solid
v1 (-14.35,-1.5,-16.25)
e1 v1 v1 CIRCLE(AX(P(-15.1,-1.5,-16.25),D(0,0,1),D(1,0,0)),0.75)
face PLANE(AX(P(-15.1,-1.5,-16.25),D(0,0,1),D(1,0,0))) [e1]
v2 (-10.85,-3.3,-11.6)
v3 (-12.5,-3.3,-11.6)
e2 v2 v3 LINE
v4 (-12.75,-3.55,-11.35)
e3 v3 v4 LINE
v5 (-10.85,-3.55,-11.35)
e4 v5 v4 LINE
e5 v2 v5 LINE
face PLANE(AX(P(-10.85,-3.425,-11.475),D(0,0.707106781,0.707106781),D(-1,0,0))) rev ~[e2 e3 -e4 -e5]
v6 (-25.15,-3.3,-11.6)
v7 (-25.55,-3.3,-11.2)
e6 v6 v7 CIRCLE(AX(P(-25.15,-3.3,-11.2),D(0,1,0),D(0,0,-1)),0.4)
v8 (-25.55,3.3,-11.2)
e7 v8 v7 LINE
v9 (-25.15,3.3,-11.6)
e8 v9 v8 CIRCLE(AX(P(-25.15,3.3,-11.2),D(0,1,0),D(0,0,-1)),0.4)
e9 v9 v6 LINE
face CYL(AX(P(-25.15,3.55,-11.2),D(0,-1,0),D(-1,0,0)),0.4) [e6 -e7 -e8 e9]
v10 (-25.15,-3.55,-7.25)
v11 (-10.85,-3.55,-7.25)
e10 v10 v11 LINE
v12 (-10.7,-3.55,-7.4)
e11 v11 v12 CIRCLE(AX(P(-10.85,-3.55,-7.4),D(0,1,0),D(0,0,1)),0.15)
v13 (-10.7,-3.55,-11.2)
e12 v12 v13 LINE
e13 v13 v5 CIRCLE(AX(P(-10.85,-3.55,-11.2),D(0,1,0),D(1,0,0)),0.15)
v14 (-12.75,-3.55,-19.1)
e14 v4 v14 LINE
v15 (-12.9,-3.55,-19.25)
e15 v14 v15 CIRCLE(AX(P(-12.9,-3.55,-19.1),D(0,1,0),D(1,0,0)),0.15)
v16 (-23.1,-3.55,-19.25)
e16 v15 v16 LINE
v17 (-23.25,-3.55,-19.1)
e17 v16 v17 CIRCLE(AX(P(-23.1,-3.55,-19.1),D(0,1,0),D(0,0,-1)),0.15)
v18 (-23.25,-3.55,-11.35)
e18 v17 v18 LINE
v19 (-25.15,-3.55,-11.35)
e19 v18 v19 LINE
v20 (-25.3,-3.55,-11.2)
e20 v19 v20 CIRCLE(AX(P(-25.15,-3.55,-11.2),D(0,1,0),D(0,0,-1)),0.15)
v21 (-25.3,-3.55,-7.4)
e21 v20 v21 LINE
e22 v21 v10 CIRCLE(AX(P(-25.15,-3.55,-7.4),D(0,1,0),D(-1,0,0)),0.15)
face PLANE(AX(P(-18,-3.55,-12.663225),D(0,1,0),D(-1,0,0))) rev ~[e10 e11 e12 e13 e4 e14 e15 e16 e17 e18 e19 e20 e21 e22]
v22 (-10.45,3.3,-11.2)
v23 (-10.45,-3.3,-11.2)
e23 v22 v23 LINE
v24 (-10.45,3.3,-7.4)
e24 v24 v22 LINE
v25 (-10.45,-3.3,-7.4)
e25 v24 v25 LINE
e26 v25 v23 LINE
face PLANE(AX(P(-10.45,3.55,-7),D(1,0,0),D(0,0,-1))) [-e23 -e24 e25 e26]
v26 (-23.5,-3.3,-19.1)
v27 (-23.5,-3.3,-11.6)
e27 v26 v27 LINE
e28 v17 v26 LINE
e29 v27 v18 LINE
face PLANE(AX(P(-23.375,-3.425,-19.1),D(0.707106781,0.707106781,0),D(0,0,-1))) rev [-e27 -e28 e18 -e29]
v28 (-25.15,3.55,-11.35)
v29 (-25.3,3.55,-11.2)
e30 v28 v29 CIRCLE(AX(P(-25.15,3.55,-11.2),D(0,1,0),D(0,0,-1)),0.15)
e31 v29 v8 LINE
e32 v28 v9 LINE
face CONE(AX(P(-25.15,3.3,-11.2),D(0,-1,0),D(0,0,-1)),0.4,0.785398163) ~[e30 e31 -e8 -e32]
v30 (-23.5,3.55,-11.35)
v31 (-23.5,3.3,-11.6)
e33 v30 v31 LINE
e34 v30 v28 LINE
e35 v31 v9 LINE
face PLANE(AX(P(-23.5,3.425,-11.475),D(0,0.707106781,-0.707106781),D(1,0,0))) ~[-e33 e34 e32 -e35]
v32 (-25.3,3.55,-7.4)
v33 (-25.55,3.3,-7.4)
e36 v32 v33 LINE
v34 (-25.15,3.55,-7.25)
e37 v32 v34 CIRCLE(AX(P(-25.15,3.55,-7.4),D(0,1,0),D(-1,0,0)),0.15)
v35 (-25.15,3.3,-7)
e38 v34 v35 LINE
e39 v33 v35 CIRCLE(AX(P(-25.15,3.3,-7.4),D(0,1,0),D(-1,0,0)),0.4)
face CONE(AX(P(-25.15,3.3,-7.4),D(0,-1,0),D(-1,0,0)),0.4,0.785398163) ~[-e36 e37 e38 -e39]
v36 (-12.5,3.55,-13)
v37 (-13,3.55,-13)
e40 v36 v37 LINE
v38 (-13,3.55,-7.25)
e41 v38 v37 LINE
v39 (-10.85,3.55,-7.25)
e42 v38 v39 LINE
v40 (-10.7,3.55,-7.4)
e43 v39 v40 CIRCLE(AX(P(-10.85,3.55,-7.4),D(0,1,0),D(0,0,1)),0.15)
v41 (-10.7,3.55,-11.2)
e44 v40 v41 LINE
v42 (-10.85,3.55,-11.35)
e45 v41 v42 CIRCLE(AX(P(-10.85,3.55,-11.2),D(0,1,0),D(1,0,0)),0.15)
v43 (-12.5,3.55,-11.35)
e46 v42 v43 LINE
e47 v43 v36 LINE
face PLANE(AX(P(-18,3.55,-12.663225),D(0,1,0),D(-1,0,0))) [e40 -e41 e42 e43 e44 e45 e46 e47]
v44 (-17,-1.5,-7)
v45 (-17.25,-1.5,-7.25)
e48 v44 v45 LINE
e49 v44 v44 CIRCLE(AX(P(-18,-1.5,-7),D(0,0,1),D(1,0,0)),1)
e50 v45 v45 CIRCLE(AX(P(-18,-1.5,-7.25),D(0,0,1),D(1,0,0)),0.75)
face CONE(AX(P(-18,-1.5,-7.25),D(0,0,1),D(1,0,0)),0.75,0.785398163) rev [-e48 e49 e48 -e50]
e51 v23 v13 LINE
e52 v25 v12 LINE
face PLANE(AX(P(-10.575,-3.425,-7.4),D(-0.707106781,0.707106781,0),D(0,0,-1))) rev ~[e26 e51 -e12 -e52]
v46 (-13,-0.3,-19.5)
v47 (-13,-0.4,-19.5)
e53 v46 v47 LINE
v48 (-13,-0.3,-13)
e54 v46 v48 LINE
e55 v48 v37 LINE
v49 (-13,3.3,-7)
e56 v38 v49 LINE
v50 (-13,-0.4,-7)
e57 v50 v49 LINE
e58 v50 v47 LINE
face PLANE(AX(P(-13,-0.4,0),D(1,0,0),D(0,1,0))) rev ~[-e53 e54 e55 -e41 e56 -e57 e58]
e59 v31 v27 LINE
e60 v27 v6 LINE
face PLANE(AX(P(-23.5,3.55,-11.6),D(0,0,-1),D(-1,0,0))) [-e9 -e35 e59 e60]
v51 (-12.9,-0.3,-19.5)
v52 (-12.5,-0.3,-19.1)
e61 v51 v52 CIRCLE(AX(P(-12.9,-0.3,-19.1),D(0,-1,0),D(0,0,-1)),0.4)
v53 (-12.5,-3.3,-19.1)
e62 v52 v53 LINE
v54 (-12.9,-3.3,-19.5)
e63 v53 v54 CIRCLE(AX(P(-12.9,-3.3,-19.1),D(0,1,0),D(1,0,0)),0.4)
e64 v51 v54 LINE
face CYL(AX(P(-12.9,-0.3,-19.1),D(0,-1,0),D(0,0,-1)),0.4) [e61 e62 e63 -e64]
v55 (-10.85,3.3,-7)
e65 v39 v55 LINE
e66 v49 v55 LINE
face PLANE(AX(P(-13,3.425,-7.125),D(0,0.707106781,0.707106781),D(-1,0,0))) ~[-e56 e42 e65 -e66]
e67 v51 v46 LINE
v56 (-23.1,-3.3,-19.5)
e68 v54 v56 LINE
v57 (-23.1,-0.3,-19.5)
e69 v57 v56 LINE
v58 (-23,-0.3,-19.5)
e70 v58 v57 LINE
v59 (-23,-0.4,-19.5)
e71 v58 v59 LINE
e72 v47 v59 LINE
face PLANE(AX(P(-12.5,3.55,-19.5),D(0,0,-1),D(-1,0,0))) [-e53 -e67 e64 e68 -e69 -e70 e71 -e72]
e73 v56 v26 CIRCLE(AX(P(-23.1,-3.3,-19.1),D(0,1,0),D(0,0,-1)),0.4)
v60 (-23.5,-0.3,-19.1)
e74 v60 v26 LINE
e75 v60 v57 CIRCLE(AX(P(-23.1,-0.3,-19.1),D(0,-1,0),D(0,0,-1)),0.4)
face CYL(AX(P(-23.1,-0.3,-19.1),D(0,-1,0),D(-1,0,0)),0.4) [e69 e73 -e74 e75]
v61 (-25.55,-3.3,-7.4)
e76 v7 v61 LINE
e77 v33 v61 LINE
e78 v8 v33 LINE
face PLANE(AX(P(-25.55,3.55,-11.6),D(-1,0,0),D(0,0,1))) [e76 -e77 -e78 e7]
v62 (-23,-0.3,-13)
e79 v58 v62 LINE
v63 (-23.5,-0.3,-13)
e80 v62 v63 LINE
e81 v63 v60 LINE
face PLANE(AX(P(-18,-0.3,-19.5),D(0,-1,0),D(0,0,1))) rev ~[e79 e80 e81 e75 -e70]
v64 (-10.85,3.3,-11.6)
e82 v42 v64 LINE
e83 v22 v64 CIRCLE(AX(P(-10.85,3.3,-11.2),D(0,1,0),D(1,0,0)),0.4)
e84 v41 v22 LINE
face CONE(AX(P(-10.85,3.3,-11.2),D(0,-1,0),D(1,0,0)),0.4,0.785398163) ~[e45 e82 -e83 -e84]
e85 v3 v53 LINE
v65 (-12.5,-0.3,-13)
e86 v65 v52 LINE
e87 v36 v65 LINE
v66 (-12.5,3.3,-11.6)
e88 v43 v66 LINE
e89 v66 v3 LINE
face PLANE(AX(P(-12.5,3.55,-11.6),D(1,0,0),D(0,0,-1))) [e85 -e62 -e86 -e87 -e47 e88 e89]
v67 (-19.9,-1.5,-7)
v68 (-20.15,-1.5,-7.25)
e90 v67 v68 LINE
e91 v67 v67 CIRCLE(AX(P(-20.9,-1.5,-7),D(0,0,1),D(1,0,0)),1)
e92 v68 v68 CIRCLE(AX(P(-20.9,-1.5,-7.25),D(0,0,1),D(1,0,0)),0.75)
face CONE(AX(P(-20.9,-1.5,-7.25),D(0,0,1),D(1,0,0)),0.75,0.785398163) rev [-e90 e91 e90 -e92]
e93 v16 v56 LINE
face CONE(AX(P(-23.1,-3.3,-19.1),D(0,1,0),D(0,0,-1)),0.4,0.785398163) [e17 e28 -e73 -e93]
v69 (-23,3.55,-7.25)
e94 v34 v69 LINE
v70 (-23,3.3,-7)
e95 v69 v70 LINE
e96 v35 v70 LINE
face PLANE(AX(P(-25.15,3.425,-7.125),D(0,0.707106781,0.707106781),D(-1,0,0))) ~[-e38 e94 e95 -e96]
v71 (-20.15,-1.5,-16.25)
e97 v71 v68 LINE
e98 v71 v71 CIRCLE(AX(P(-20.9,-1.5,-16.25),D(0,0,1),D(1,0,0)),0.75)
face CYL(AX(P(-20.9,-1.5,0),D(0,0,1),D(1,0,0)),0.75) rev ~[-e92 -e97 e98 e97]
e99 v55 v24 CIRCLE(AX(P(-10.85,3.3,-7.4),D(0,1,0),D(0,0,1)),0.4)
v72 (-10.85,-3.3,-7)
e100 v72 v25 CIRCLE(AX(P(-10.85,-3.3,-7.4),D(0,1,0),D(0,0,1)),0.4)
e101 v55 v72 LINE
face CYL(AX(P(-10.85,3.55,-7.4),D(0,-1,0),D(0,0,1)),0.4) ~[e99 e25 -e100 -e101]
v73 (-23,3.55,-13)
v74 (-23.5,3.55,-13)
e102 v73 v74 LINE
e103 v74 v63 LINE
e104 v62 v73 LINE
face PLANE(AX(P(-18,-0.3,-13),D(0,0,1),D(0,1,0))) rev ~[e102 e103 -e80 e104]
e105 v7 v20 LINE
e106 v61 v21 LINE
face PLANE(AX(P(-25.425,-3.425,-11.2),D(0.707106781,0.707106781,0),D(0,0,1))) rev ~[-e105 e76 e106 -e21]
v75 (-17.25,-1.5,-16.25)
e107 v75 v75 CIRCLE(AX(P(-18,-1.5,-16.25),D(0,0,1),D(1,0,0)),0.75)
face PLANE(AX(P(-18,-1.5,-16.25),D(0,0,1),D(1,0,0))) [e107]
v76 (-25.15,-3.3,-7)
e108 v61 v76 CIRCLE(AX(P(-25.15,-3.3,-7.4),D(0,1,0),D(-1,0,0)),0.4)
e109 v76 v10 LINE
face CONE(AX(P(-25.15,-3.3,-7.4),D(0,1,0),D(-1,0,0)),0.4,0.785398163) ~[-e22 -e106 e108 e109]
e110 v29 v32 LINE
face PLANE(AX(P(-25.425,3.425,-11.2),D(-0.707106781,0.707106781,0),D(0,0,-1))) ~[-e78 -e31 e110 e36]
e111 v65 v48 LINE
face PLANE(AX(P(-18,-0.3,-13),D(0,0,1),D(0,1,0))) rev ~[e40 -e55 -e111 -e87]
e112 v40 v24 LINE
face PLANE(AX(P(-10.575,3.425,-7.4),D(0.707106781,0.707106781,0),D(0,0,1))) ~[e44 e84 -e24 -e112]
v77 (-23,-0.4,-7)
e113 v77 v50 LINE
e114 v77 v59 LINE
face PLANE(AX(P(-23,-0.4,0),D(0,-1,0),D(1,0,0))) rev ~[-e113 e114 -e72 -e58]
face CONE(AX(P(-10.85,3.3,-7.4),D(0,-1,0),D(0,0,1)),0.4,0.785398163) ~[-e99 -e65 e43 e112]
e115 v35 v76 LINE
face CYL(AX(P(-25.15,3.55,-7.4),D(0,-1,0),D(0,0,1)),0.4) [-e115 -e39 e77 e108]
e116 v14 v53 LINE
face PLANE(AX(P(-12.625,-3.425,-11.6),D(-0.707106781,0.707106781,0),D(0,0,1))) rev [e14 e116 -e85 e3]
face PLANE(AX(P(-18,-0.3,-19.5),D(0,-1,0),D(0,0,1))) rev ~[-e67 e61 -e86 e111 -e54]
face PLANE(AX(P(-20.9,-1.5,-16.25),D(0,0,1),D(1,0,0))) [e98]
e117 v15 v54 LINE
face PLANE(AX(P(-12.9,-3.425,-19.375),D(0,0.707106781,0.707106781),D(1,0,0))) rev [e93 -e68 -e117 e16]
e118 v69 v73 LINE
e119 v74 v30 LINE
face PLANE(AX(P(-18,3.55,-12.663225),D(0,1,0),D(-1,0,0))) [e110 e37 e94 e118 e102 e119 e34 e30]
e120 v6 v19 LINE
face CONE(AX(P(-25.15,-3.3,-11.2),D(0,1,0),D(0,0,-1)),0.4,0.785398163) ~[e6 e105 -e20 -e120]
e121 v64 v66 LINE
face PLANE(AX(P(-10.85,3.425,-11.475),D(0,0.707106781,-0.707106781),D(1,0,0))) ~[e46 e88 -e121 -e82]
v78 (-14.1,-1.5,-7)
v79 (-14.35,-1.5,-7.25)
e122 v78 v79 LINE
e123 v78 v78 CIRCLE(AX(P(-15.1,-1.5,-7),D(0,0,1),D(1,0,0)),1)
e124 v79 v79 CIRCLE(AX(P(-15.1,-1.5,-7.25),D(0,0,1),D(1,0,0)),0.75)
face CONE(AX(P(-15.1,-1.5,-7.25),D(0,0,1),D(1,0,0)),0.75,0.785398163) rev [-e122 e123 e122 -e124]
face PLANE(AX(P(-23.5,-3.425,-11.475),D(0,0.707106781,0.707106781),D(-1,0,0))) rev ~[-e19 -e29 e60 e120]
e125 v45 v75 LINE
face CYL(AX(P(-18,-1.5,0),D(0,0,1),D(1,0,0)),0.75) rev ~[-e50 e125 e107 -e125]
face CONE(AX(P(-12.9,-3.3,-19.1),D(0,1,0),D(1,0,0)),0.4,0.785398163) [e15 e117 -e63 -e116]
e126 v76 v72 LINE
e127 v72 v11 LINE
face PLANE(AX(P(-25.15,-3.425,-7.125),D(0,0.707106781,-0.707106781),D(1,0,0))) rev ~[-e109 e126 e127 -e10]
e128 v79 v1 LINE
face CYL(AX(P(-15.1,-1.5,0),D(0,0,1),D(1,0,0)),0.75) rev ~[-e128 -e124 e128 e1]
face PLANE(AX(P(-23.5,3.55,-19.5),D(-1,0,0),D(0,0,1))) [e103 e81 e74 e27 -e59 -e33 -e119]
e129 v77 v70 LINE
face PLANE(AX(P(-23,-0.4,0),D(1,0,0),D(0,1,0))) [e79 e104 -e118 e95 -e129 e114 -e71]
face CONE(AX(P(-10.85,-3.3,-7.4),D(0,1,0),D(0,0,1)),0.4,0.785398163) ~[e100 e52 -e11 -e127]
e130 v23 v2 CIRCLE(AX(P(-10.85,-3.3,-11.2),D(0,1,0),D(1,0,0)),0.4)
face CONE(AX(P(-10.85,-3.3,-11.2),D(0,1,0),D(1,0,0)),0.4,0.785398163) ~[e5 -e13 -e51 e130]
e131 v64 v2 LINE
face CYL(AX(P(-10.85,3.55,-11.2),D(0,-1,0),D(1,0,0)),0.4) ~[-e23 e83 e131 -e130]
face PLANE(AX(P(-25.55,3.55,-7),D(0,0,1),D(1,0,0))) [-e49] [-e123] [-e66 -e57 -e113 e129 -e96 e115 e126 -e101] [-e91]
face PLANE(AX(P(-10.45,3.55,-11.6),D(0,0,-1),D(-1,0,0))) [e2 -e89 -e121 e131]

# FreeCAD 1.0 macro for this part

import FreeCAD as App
import Part
import Sketcher

V = App.Vector
Q = App.Units.Quantity


def edges_at(feature, points):
    """Names of the edges that pass closest to the given points."""
    edges = feature.Shape.Edges
    near = lambda p: min(range(len(edges)), key=lambda i: edges[i].distToShape(Part.Vertex(*p))[0])
    return sorted({f"Edge{near(p) + 1}" for p in points})

doc = App.newDocument("Part")
body = doc.addObject("PartDesign::Body", "Body")

sketch1 = body.newObject("Sketcher::SketchObject", "Sketch")
sketch1.AttachmentSupport = (doc.getObject("XZ_Plane"), [""])
sketch1.MapMode = "FlatFace"
sketch1.AttachmentOffset = App.Placement(V(0, 0, 3.55), App.Rotation())
sketch1.addGeometry([
    Part.LineSegment(V(5.5, -19.5, 0), V(5.5, -11.6, 0)),
    Part.LineSegment(V(5.5, -11.6, 0), V(7.55, -11.6, 0)),
    Part.LineSegment(V(7.55, -11.6, 0), V(7.55, -7, 0)),
    Part.LineSegment(V(7.55, -7, 0), V(-7.55, -7, 0)),
    Part.LineSegment(V(-7.55, -7, 0), V(-7.55, -11.6, 0)),
    Part.LineSegment(V(-7.55, -11.6, 0), V(-5.5, -11.6, 0)),
    Part.LineSegment(V(-5.5, -11.6, 0), V(-5.5, -19.5, 0)),
    Part.LineSegment(V(-5.5, -19.5, 0), V(5.5, -19.5, 0)),
], False)
sketch1.addConstraint([
    Sketcher.Constraint("Coincident", 0, 2, 1, 1),
    Sketcher.Constraint("Coincident", 1, 2, 2, 1),
    Sketcher.Constraint("Coincident", 2, 2, 3, 1),
    Sketcher.Constraint("Coincident", 3, 2, 4, 1),
    Sketcher.Constraint("Coincident", 4, 2, 5, 1),
    Sketcher.Constraint("Coincident", 5, 2, 6, 1),
    Sketcher.Constraint("Coincident", 6, 2, 7, 1),
    Sketcher.Constraint("Coincident", 7, 2, 0, 1),
    Sketcher.Constraint("Vertical", 0),
    Sketcher.Constraint("Horizontal", 1),
    Sketcher.Constraint("Vertical", 2),
    Sketcher.Constraint("Horizontal", 3),
    Sketcher.Constraint("Vertical", 4),
    Sketcher.Constraint("Horizontal", 5),
    Sketcher.Constraint("Vertical", 6),
    Sketcher.Constraint("Horizontal", 7),
    Sketcher.Constraint("Symmetric", 1, 2, 4, 2, -2),
    Sketcher.Constraint("Equal", 1, 5),
    Sketcher.Constraint("DistanceX", 7, 1, 7, 2, Q("11 mm")),
    Sketcher.Constraint("DistanceX", 3, 2, 3, 1, Q("15.1 mm")),
    Sketcher.Constraint("DistanceY", 0, 1, 0, 2, Q("7.9 mm")),
    Sketcher.Constraint("DistanceY", 2, 1, 2, 2, Q("4.6 mm")),
    Sketcher.Constraint("DistanceY", 2, 2, -1, 1, Q("7 mm")),
])
pad1 = body.newObject("PartDesign::Pad", "Pad")
pad1.Profile = sketch1
pad1.Length = 7.1

sketch2 = body.newObject("Sketcher::SketchObject", "Sketch001")
sketch2.AttachmentSupport = (doc.getObject("YZ_Plane"), [""])
sketch2.MapMode = "FlatFace"
sketch2.addGeometry([
    Part.LineSegment(V(-7.4, -13, 0), V(-7.4, -19.5, 0)),
    Part.LineSegment(V(-7.4, -19.5, 0), V(0, -19.5, 0)),
    Part.LineSegment(V(0, -19.5, 0), V(0, -13, 0)),
    Part.LineSegment(V(0, -13, 0), V(-7.4, -13, 0)),
], False)
sketch2.addConstraint([
    Sketcher.Constraint("Coincident", 0, 2, 1, 1),
    Sketcher.Constraint("Coincident", 1, 2, 2, 1),
    Sketcher.Constraint("Coincident", 2, 2, 3, 1),
    Sketcher.Constraint("Coincident", 3, 2, 0, 1),
    Sketcher.Constraint("Vertical", 0),
    Sketcher.Constraint("Horizontal", 1),
    Sketcher.Constraint("Vertical", 2),
    Sketcher.Constraint("Horizontal", 3),
    Sketcher.Constraint("PointOnObject", 1, 2, -2),
    Sketcher.Constraint("DistanceX", 1, 1, 1, 2, Q("7.4 mm")),
    Sketcher.Constraint("DistanceY", 0, 2, 0, 1, Q("6.5 mm")),
    Sketcher.Constraint("DistanceY", 2, 2, -1, 1, Q("13 mm")),
])
pocket1 = body.newObject("PartDesign::Pocket", "Pocket")
pocket1.Profile = sketch2
pocket1.Type = "ThroughAll"
pocket1.Midplane = True

sketch3 = body.newObject("Sketcher::SketchObject", "Sketch002")
sketch3.AttachmentSupport = (doc.getObject("XY_Plane"), [""])
sketch3.MapMode = "FlatFace"
sketch3.addGeometry([
    Part.LineSegment(V(-5, 0, 0), V(-5, -7.5, 0)),
    Part.LineSegment(V(-5, -7.5, 0), V(5, -7.5, 0)),
    Part.LineSegment(V(5, -7.5, 0), V(5, 0, 0)),
    Part.LineSegment(V(5, 0, 0), V(-5, 0, 0)),
], False)
sketch3.addConstraint([
    Sketcher.Constraint("Coincident", 0, 2, 1, 1),
    Sketcher.Constraint("Coincident", 1, 2, 2, 1),
    Sketcher.Constraint("Coincident", 2, 2, 3, 1),
    Sketcher.Constraint("Coincident", 3, 2, 0, 1),
    Sketcher.Constraint("Vertical", 0),
    Sketcher.Constraint("Horizontal", 1),
    Sketcher.Constraint("Vertical", 2),
    Sketcher.Constraint("Horizontal", 3),
    Sketcher.Constraint("Symmetric", 2, 2, 3, 2, -1, 1),
    Sketcher.Constraint("DistanceX", 1, 1, 1, 2, Q("10 mm")),
    Sketcher.Constraint("DistanceY", 0, 2, 0, 1, Q("7.5 mm")),
])
pocket2 = body.newObject("PartDesign::Pocket", "Pocket001")
pocket2.Profile = sketch3
pocket2.Type = "ThroughAll"
pocket2.Midplane = True

sketch4 = body.newObject("Sketcher::SketchObject", "Sketch003")
sketch4.AttachmentSupport = (doc.getObject("XY_Plane"), [""])
sketch4.MapMode = "FlatFace"
sketch4.addGeometry([
    Part.Circle(V(0, -8.6, 0), V(0, 0, 1), 0.75),
    Part.Circle(V(2.9, -8.6, 0), V(0, 0, 1), 0.75),
    Part.Circle(V(-2.9, -8.6, 0), V(0, 0, 1), 0.75),
], False)
sketch4.addConstraint([
    Sketcher.Constraint("Equal", 0, 1),
    Sketcher.Constraint("Equal", 1, 2),
    Sketcher.Constraint("Symmetric", 1, 3, 2, 3, -2),
    Sketcher.Constraint("PointOnObject", 0, 3, -2),
    Sketcher.Constraint("Horizontal", 0, 3, 1, 3),
    Sketcher.Constraint("Diameter", 0, Q("1.5 mm")),
    Sketcher.Constraint("DistanceY", 0, 3, -1, 1, Q("8.6 mm")),
    Sketcher.Constraint("DistanceX", -1, 1, 1, 3, Q("2.9 mm")),
])
pocket3 = body.newObject("PartDesign::Pocket", "Pocket002")
pocket3.Profile = sketch4
pocket3.Length = 32.5
pocket3.Midplane = True
doc.recompute()

chamfer = body.newObject("PartDesign::Chamfer", "Chamfer")
chamfer.Base = (pocket3, edges_at(pocket3, [(2.15, -8.6, -7), (-0.75, -8.6, -7), (-3.65, -8.6, -7)]))
chamfer.Size = 0.25
doc.recompute()

fillet = body.newObject("PartDesign::Fillet", "Fillet")
fillet.Base = (chamfer, edges_at(chamfer, [
    (-7.55, -7.1, -7),
    (7.55, -7.1, -7),
    (-7.55, -7.1, -11.6),
    (5.5, -9.025, -19.5),
    (-5.5, -9.025, -19.5),
    (7.55, -7.1, -11.6),
]))
fillet.Radius = 0.4
doc.recompute()

chamfer2 = body.newObject("PartDesign::Chamfer", "Chamfer001")
chamfer2.Base = (fillet, edges_at(fillet, [
    (0, -10.65, -7),
    (0, -10.65, -19.5),
    (-7.55, -3.55, -9.3),
    (7.55, -3.55, -9.3),
]))
chamfer2.Size = 0.25
body2 = doc.addObject("PartDesign::Body", "Body001")
doc.recompute()

body.Placement = App.Placement(V(-18, 7.1, 0), App.Rotation(V(0, 0, 1), 0))
boolean = body2.newObject("PartDesign::Boolean", "Boolean")
boolean.Type = "Fuse"
boolean.addObjects([body])

doc.recompute()
